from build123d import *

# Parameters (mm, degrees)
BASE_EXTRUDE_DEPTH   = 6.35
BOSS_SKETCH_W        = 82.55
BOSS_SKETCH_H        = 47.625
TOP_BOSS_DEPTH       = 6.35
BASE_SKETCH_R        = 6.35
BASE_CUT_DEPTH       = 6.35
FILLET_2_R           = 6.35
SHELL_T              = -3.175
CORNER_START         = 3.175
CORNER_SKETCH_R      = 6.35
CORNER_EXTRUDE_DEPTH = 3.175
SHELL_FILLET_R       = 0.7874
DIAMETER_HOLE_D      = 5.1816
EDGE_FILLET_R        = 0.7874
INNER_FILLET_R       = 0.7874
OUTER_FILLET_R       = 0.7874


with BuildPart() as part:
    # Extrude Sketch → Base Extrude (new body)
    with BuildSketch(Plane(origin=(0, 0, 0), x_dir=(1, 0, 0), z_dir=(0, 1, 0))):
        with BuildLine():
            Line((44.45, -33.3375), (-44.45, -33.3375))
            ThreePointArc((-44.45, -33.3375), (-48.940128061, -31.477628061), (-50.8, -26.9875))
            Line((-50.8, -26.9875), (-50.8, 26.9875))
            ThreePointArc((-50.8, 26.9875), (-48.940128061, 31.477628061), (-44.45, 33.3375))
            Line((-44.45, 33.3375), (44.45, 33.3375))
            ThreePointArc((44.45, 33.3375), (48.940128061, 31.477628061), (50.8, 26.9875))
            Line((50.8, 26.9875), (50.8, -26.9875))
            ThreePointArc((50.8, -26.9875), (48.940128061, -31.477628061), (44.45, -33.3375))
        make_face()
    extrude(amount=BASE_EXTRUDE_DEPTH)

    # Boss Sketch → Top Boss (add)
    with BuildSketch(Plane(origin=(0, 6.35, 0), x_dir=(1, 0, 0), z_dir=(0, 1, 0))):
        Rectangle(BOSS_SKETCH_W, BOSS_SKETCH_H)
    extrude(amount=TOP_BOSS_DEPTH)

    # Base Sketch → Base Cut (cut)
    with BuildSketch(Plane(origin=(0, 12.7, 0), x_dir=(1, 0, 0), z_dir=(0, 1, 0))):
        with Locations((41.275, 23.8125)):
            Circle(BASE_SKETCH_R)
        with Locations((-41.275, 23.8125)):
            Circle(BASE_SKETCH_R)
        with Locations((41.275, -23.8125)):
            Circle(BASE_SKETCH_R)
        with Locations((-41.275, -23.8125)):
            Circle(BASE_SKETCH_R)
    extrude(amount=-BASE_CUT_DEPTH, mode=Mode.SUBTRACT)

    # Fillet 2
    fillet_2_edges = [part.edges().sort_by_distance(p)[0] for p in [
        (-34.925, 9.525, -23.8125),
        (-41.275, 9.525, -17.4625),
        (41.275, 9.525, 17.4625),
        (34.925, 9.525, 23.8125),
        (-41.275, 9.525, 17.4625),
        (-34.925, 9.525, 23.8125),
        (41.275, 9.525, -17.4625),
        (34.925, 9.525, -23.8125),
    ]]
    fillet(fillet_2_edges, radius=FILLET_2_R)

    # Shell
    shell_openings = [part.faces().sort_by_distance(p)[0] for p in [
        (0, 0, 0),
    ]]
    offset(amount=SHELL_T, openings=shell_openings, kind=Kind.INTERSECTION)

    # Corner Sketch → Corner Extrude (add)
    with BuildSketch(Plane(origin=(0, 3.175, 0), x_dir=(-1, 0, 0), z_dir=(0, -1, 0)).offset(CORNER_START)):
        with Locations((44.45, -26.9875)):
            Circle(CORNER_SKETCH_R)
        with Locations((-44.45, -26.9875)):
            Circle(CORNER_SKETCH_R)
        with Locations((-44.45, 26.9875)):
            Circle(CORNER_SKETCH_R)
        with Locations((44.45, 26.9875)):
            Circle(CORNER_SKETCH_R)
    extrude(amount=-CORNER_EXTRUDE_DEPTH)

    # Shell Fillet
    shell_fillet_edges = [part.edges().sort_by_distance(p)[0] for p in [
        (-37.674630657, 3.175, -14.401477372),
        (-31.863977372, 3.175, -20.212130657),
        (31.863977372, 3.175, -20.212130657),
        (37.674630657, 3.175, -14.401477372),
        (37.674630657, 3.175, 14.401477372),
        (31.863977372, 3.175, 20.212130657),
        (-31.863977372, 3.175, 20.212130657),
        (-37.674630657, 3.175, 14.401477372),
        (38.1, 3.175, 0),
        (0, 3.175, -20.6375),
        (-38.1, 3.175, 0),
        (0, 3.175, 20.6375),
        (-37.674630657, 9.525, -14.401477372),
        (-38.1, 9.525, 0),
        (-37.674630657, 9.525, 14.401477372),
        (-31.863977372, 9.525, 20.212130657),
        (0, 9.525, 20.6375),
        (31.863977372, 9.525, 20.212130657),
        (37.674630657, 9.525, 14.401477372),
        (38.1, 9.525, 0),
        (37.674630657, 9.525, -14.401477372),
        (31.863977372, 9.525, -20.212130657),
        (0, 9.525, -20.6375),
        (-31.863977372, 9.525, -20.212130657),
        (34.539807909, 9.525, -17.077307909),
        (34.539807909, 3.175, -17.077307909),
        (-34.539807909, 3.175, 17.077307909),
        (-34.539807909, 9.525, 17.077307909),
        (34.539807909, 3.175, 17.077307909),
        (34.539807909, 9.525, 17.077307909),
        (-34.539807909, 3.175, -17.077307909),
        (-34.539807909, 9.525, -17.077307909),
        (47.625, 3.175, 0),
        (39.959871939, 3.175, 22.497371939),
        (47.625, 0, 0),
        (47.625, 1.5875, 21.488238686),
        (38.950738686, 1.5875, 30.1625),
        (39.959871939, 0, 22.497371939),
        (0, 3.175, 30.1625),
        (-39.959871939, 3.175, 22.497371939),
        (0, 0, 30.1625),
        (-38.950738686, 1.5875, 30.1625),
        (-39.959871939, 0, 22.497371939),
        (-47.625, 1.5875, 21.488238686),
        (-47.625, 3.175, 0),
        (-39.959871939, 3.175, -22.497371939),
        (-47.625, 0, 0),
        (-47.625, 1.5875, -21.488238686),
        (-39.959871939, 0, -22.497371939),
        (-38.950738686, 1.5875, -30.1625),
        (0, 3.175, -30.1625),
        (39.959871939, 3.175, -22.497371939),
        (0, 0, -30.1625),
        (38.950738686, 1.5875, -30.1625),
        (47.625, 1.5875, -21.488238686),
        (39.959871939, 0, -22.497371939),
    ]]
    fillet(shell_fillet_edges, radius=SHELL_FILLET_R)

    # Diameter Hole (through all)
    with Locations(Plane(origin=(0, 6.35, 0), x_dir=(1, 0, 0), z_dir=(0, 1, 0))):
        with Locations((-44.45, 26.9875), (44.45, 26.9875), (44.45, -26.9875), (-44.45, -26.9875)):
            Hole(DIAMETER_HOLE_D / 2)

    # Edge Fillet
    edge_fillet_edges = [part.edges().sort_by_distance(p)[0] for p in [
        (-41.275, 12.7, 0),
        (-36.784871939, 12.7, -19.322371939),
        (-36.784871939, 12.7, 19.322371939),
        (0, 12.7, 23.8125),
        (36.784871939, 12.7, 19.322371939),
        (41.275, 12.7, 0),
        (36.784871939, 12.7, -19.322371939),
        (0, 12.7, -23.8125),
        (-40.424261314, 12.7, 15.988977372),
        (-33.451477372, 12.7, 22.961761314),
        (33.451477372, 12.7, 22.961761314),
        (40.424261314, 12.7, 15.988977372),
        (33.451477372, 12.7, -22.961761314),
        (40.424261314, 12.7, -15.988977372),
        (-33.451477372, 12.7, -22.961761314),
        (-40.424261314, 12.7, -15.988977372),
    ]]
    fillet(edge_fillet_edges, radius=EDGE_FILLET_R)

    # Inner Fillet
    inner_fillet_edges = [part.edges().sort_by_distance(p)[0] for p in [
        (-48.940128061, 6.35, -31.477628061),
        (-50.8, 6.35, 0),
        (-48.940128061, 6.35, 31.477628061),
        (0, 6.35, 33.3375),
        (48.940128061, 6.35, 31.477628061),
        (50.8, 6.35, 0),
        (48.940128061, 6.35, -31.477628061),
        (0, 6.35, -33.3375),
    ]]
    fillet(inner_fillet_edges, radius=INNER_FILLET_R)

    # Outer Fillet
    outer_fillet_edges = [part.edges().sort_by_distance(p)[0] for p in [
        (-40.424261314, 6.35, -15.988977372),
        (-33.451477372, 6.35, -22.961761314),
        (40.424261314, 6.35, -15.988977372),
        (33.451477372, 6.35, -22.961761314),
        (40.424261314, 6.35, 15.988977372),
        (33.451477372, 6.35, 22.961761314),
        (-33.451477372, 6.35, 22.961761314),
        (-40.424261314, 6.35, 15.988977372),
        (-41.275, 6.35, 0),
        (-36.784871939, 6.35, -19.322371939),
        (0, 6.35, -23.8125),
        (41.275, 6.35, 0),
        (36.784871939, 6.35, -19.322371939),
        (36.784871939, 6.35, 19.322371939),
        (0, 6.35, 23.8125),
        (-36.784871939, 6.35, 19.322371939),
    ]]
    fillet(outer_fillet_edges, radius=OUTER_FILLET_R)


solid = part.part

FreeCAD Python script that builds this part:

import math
import FreeCAD as App
import Part
import Sketcher
from FreeCAD import Vector
Q = App.Units.Quantity


def edges_at(feature, points):
    """Names of the edges that pass closest to the given points."""
    edges = feature.Shape.Edges
    near = lambda p: min(range(len(edges)), key=lambda i: edges[i].distToShape(Part.Vertex(*p))[0])
    return sorted({f"Edge{near(p) + 1}" for p in points})


def faces_at(feature, points):
    """Names of the faces that lie closest to the given points."""
    faces = feature.Shape.Faces
    near = lambda p: min(range(len(faces)), key=lambda i: faces[i].distToShape(Part.Vertex(*p))[0])
    return sorted({f"Face{near(p) + 1}" for p in points})

doc = App.newDocument("Part")
body = doc.addObject("PartDesign::Body", "Body")

sketch1 = body.newObject("Sketcher::SketchObject", "Sketch")
sketch1.AttachmentSupport = (doc.getObject("XZ_Plane"), [""])
sketch1.MapMode = "FlatFace"
sketch1.addGeometry([
    Part.LineSegment(Vector(-44, 33, 0), Vector(44, 33, 0)),
    Part.ArcOfCircle(Part.Circle(Vector(44, 27, 0), Vector(0, 0, 1), 6), math.radians(0), math.radians(90)),
    Part.LineSegment(Vector(51, 27, 0), Vector(51, -27, 0)),
    Part.ArcOfCircle(Part.Circle(Vector(44, -27, 0), Vector(0, 0, 1), 6), math.radians(-90), math.radians(0)),
    Part.LineSegment(Vector(44, -33, 0), Vector(-44, -33, 0)),
    Part.ArcOfCircle(Part.Circle(Vector(-44, -27, 0), Vector(0, 0, 1), 6), math.radians(180), math.radians(270)),
    Part.LineSegment(Vector(-51, -27, 0), Vector(-51, 27, 0)),
    Part.ArcOfCircle(Part.Circle(Vector(-44, 27, 0), Vector(0, 0, 1), 6), math.radians(90), math.radians(180)),
], False)
sketch1.addConstraint([
    Sketcher.Constraint("Tangent", 0, 2, 1, 2),
    Sketcher.Constraint("Tangent", 1, 1, 2, 1),
    Sketcher.Constraint("Tangent", 2, 2, 3, 2),
    Sketcher.Constraint("Tangent", 3, 1, 4, 1),
    Sketcher.Constraint("Tangent", 4, 2, 5, 2),
    Sketcher.Constraint("Tangent", 5, 1, 6, 1),
    Sketcher.Constraint("Tangent", 6, 2, 7, 2),
    Sketcher.Constraint("Tangent", 7, 1, 0, 1),
    Sketcher.Constraint("Horizontal", 0),
    Sketcher.Constraint("Vertical", 2),
    Sketcher.Constraint("Horizontal", 4),
    Sketcher.Constraint("Vertical", 6),
    Sketcher.Constraint("Equal", 1, 3),
    Sketcher.Constraint("Equal", 3, 5),
    Sketcher.Constraint("Equal", 5, 7),
    Sketcher.Constraint("Symmetric", 1, 3, 5, 3, -1, 1),
    Sketcher.Constraint("Radius", 1, Q("0.25 in")),
    Sketcher.Constraint("DistanceX", 0, 1, 0, 2, Q("3.5 in")),
    Sketcher.Constraint("DistanceY", 2, 2, 2, 1, Q("2.125 in")),
])
pad1 = body.newObject("PartDesign::Pad", "Pad")
pad1.Profile = sketch1
pad1.Length = Q("0.25 in")
pad1.Reversed = True

sketch2 = body.newObject("Sketcher::SketchObject", "Sketch001")
sketch2.AttachmentSupport = (doc.getObject("XZ_Plane"), [""])
sketch2.MapMode = "FlatFace"
sketch2.AttachmentOffset = App.Placement(Vector(0, 0, -0.25 * 25.4), App.Rotation())
sketch2.addGeometry([
    Part.LineSegment(Vector(-41, -24, 0), Vector(-41, 24, 0)),
    Part.LineSegment(Vector(-41, 24, 0), Vector(41, 24, 0)),
    Part.LineSegment(Vector(41, 24, 0), Vector(41, -24, 0)),
    Part.LineSegment(Vector(41, -24, 0), Vector(-41, -24, 0)),
], False)
sketch2.addConstraint([
    Sketcher.Constraint("Coincident", 0, 2, 1, 1),
    Sketcher.Constraint("Coincident", 1, 2, 2, 1),
    Sketcher.Constraint("Coincident", 2, 2, 3, 1),
    Sketcher.Constraint("Coincident", 3, 2, 0, 1),
    Sketcher.Constraint("Vertical", 0),
    Sketcher.Constraint("Horizontal", 1),
    Sketcher.Constraint("Vertical", 2),
    Sketcher.Constraint("Horizontal", 3),
    Sketcher.Constraint("Symmetric", 0, 2, 2, 2, -1, 1),
    Sketcher.Constraint("DistanceX", 1, 1, 1, 2, Q("3.25 in")),
    Sketcher.Constraint("DistanceY", 0, 1, 0, 2, Q("1.875 in")),
])
pad2 = body.newObject("PartDesign::Pad", "Pad001")
pad2.Profile = sketch2
pad2.Length = Q("0.25 in")
pad2.Reversed = True

sketch3 = body.newObject("Sketcher::SketchObject", "Sketch002")
sketch3.AttachmentSupport = (doc.getObject("XZ_Plane"), [""])
sketch3.MapMode = "FlatFace"
sketch3.AttachmentOffset = App.Placement(Vector(0, 0, -0.5 * 25.4), App.Rotation())
sketch3.addGeometry([
    Part.Circle(Vector(41, -24, 0), Vector(0, 0, 1), 6),
    Part.Circle(Vector(-41, -24, 0), Vector(0, 0, 1), 6),
    Part.Circle(Vector(41, 24, 0), Vector(0, 0, 1), 6),
    Part.Circle(Vector(-41, 24, 0), Vector(0, 0, 1), 6),
], False)
sketch3.addConstraint([
    Sketcher.Constraint("Equal", 0, 1),
    Sketcher.Constraint("Equal", 1, 2),
    Sketcher.Constraint("Equal", 2, 3),
    Sketcher.Constraint("Symmetric", 1, 3, 2, 3, -1, 1),
    Sketcher.Constraint("Symmetric", 0, 3, 3, 3, -1, 1),
    Sketcher.Constraint("Symmetric", 0, 3, 1, 3, -2),
    Sketcher.Constraint("Diameter", 0, Q("0.5 in")),
    Sketcher.Constraint("DistanceX", 1, 3, 0, 3, Q("3.25 in")),
    Sketcher.Constraint("DistanceY", 0, 3, -1, 1, Q("0.9375 in")),
])
pocket1 = body.newObject("PartDesign::Pocket", "Pocket")
pocket1.Profile = sketch3
pocket1.Length = Q("0.25 in")
pocket1.Reversed = True
doc.recompute()

fillet = body.newObject("PartDesign::Fillet", "Fillet")
fillet.Base = (pocket1, edges_at(pocket1, [
    (-34.925, 9.525, -23.812),
    (-41.275, 9.525, -17.462),
    (41.275, 9.525, 17.462),
    (34.925, 9.525, 23.812),
    (-41.275, 9.525, 17.462),
    (-34.925, 9.525, 23.812),
    (41.275, 9.525, -17.462),
    (34.925, 9.525, -23.812),
]))
fillet.Radius = Q("0.25 in")
doc.recompute()

thickness = body.newObject("PartDesign::Thickness", "Thickness")
thickness.Base = (fillet, faces_at(fillet, [(0, 0, 0)]))
thickness.Value = Q("0.125 in")
thickness.Reversed = True
thickness.Join = "Intersection"

sketch4 = body.newObject("Sketcher::SketchObject", "Sketch003")
sketch4.AttachmentSupport = (doc.getObject("XZ_Plane"), [""])
sketch4.MapMode = "FlatFace"
sketch4.addGeometry([
    Part.Circle(Vector(-44, 27, 0), Vector(0, 0, 1), 6),
    Part.Circle(Vector(44, 27, 0), Vector(0, 0, 1), 6),
    Part.Circle(Vector(44, -27, 0), Vector(0, 0, 1), 6),
    Part.Circle(Vector(-44, -27, 0), Vector(0, 0, 1), 6),
], False)
sketch4.addConstraint([
    Sketcher.Constraint("Equal", 0, 1),
    Sketcher.Constraint("Equal", 1, 2),
    Sketcher.Constraint("Equal", 2, 3),
    Sketcher.Constraint("Symmetric", 0, 3, 2, 3, -1, 1),
    Sketcher.Constraint("Symmetric", 1, 3, 3, 3, -1, 1),
    Sketcher.Constraint("Symmetric", 0, 3, 1, 3, -2),
    Sketcher.Constraint("Diameter", 0, Q("0.5 in")),
    Sketcher.Constraint("DistanceX", 0, 3, 1, 3, Q("3.5 in")),
    Sketcher.Constraint("DistanceY", -1, 1, 0, 3, Q("1.0625 in")),
])
pad3 = body.newObject("PartDesign::Pad", "Pad002")
pad3.Profile = sketch4
pad3.Length = Q("0.125 in")
pad3.Reversed = True
doc.recompute()

fillet2 = body.newObject("PartDesign::Fillet", "Fillet001")
fillet2.Base = (pad3, edges_at(pad3, [
    (-37.675, 3.175, -14.401),
    (-31.864, 3.175, -20.212),
    (31.864, 3.175, -20.212),
    (37.675, 3.175, -14.401),
    (37.675, 3.175, 14.401),
    (31.864, 3.175, 20.212),
    (-31.864, 3.175, 20.212),
    (-37.675, 3.175, 14.401),
    (38.1, 3.175, 0),
    (0, 3.175, -20.637),
    (-38.1, 3.175, 0),
    (0, 3.175, 20.637),
    (-37.675, 9.525, -14.401),
    (-38.1, 9.525, 0),
    (-37.675, 9.525, 14.401),
    (-31.864, 9.525, 20.212),
    (0, 9.525, 20.637),
    (31.864, 9.525, 20.212),
    (37.675, 9.525, 14.401),
    (38.1, 9.525, 0),
    (37.675, 9.525, -14.401),
    (31.864, 9.525, -20.212),
    (0, 9.525, -20.637),
    (-31.864, 9.525, -20.212),
    (34.54, 9.525, -17.077),
    (34.54, 3.175, -17.077),
    (-34.54, 3.175, 17.077),
    (-34.54, 9.525, 17.077),
    (34.54, 3.175, 17.077),
    (34.54, 9.525, 17.077),
    (-34.54, 3.175, -17.077),
    (-34.54, 9.525, -17.077),
    (47.625, 3.175, 0),
    (39.96, 3.175, 22.497),
    (47.625, 0, 0),
    (47.625, 1.587, 21.488),
    (38.951, 1.587, 30.163),
    (39.96, 0, 22.497),
    (0, 3.175, 30.163),
    (-39.96, 3.175, 22.497),
    (0, 0, 30.163),
    (-38.951, 1.587, 30.163),
    (-39.96, 0, 22.497),
    (-47.625, 1.587, 21.488),
    (-47.625, 3.175, 0),
    (-39.96, 3.175, -22.497),
    (-47.625, 0, 0),
    (-47.625, 1.587, -21.488),
    (-39.96, 0, -22.497),
    (-38.951, 1.587, -30.163),
    (0, 3.175, -30.163),
    (39.96, 3.175, -22.497),
    (0, 0, -30.163),
    (38.951, 1.587, -30.163),
    (47.625, 1.587, -21.488),
    (39.96, 0, -22.497),
]))
fillet2.Radius = Q("0.031 in")

sketch5 = body.newObject("Sketcher::SketchObject", "Sketch004")
sketch5.AttachmentSupport = (doc.getObject("XZ_Plane"), [""])
sketch5.MapMode = "FlatFace"
sketch5.AttachmentOffset = App.Placement(Vector(0, 0, -0.25 * 25.4), App.Rotation())
sketch5.addGeometry([
    Part.Circle(Vector(-44.5, -27, 0), Vector(0, 0, 1), 2.6),
    Part.Circle(Vector(44.5, -27, 0), Vector(0, 0, 1), 2.6),
    Part.Circle(Vector(44.5, 27, 0), Vector(0, 0, 1), 2.6),
    Part.Circle(Vector(-44.5, 27, 0), Vector(0, 0, 1), 2.6),
], False)
sketch5.addConstraint([
    Sketcher.Constraint("Equal", 0, 1),
    Sketcher.Constraint("Equal", 1, 2),
    Sketcher.Constraint("Equal", 2, 3),
    Sketcher.Constraint("Symmetric", 0, 3, 2, 3, -1, 1),
    Sketcher.Constraint("Symmetric", 1, 3, 3, 3, -1, 1),
    Sketcher.Constraint("Symmetric", 0, 3, 1, 3, -2),
    Sketcher.Constraint("Diameter", 0, Q("0.204 in")),
    Sketcher.Constraint("DistanceX", 0, 3, 1, 3, Q("3.5 in")),
    Sketcher.Constraint("DistanceY", 0, 3, -1, 1, Q("1.0625 in")),
])
doc.recompute()
hole = body.newObject("PartDesign::Hole", "Hole")
hole.Profile = sketch5
hole.ThreadType = "None"
hole.Diameter = Q("0.204 in")
hole.DepthType = "ThroughAll"
hole.Reversed = True
doc.recompute()

fillet3 = body.newObject("PartDesign::Fillet", "Fillet002")
fillet3.Base = (hole, edges_at(hole, [
    (-41.275, 12.7, 0),
    (-36.785, 12.7, -19.322),
    (-36.785, 12.7, 19.322),
    (0, 12.7, 23.812),
    (36.785, 12.7, 19.322),
    (41.275, 12.7, 0),
    (36.785, 12.7, -19.322),
    (0, 12.7, -23.812),
    (-40.424, 12.7, 15.989),
    (-33.451, 12.7, 22.962),
    (33.451, 12.7, 22.962),
    (40.424, 12.7, 15.989),
    (33.451, 12.7, -22.962),
    (40.424, 12.7, -15.989),
    (-33.451, 12.7, -22.962),
    (-40.424, 12.7, -15.989),
]))
fillet3.Radius = Q("0.031 in")
doc.recompute()

fillet4 = body.newObject("PartDesign::Fillet", "Fillet003")
fillet4.Base = (fillet3, edges_at(fillet3, [
    (-48.94, 6.35, -31.478),
    (-50.8, 6.35, 0),
    (-48.94, 6.35, 31.478),
    (0, 6.35, 33.337),
    (48.94, 6.35, 31.478),
    (50.8, 6.35, 0),
    (48.94, 6.35, -31.478),
    (0, 6.35, -33.337),
]))
fillet4.Radius = Q("0.031 in")
doc.recompute()

fillet5 = body.newObject("PartDesign::Fillet", "Fillet004")
fillet5.Base = (fillet4, edges_at(fillet4, [
    (-40.424, 6.35, -15.989),
    (-33.451, 6.35, -22.962),
    (40.424, 6.35, -15.989),
    (33.451, 6.35, -22.962),
    (40.424, 6.35, 15.989),
    (33.451, 6.35, 22.962),
    (-33.451, 6.35, 22.962),
    (-40.424, 6.35, 15.989),
    (-41.275, 6.35, 0),
    (-36.785, 6.35, -19.322),
    (0, 6.35, -23.812),
    (41.275, 6.35, 0),
    (36.785, 6.35, -19.322),
    (36.785, 6.35, 19.322),
    (0, 6.35, 23.812),
    (-36.785, 6.35, 19.322),
]))
fillet5.Radius = Q("0.031 in")

doc.recompute()
